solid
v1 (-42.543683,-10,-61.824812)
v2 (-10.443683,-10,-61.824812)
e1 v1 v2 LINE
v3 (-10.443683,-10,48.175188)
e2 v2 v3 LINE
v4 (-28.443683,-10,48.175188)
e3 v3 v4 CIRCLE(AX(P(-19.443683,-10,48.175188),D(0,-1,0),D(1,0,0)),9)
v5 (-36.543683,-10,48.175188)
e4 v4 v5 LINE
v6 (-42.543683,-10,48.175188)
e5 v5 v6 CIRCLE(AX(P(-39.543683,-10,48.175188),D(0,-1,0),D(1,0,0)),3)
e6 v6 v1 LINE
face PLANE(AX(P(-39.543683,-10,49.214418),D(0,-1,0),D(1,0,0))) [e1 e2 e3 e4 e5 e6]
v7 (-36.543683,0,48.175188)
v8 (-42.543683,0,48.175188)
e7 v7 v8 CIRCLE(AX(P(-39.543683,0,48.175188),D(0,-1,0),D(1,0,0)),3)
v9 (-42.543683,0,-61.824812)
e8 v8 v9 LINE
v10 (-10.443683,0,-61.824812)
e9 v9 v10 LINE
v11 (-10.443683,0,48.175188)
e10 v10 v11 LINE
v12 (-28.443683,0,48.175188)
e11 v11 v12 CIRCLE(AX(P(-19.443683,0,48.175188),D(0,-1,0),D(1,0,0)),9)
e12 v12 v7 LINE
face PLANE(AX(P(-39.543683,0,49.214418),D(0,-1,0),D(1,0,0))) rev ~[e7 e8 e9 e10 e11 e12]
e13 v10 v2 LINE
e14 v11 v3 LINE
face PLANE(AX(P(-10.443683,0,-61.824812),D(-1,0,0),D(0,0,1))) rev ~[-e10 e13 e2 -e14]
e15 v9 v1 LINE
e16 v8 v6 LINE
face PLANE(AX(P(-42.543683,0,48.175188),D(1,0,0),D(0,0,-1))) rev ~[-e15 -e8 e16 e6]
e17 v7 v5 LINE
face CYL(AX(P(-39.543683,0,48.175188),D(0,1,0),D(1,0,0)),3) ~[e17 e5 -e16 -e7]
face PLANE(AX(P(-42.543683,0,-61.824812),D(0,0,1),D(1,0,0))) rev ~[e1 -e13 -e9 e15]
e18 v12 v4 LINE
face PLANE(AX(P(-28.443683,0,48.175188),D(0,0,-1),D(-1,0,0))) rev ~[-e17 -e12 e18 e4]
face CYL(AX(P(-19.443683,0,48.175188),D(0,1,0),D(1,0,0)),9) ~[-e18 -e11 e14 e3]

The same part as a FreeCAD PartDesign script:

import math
import FreeCAD as App
import Part
import Sketcher

V = App.Vector

doc = App.newDocument("Part")
body = doc.addObject("PartDesign::Body", "Body")

sketch1 = body.newObject("Sketcher::SketchObject", "Sketch")
sketch1.AttachmentSupport = (doc.getObject("XZ_Plane"), [""])
sketch1.MapMode = "FlatFace"
sketch1.addGeometry([
    Part.ArcOfCircle(Part.Circle(V(-39.5, 48.2, 0), V(0, 0, 1), 3), math.radians(0), math.radians(180)),
    Part.LineSegment(V(-42.5, 48.2, 0), V(-42.5, -61.8, 0)),
    Part.LineSegment(V(-42.5, -61.8, 0), V(-10.4, -61.8, 0)),
    Part.LineSegment(V(-10.4, -61.8, 0), V(-10.4, 48.2, 0)),
    Part.ArcOfCircle(Part.Circle(V(-19.4, 48.2, 0), V(0, 0, 1), 9), math.radians(0), math.radians(180)),
    Part.LineSegment(V(-28.4, 48.2, 0), V(-36.5, 48.2, 0)),
], False)
sketch1.addConstraint([
    Sketcher.Constraint("Tangent", 0, 2, 1, 1),
    Sketcher.Constraint("Coincident", 1, 2, 2, 1),
    Sketcher.Constraint("Coincident", 2, 2, 3, 1),
    Sketcher.Constraint("Tangent", 3, 2, 4, 1),
    Sketcher.Constraint("Coincident", 4, 2, 5, 1),
    Sketcher.Constraint("Coincident", 5, 2, 0, 1),
    Sketcher.Constraint("Vertical", 1),
    Sketcher.Constraint("Horizontal", 2),
    Sketcher.Constraint("Vertical", 3),
    Sketcher.Constraint("Horizontal", 5),
    Sketcher.Constraint("Horizontal", 0, 3, 4, 3),
    Sketcher.Constraint("Horizontal", 3, 2, 4, 2),
    Sketcher.Constraint("Radius", 0, 3.0),
    Sketcher.Constraint("Radius", 4, 9.0),
    Sketcher.Constraint("DistanceY", 1, 2, 1, 1, 110.0),
    Sketcher.Constraint("DistanceX", 2, 1, 2, 2, 32.1),
    Sketcher.Constraint("DistanceX", 0, 3, -1, 1, 39.543683),
    Sketcher.Constraint("DistanceY", -1, 1, 0, 3, 48.175188),
])
pad1 = body.newObject("PartDesign::Pad", "Pad")
pad1.Profile = sketch1
pad1.Length = 10

doc.recompute()
